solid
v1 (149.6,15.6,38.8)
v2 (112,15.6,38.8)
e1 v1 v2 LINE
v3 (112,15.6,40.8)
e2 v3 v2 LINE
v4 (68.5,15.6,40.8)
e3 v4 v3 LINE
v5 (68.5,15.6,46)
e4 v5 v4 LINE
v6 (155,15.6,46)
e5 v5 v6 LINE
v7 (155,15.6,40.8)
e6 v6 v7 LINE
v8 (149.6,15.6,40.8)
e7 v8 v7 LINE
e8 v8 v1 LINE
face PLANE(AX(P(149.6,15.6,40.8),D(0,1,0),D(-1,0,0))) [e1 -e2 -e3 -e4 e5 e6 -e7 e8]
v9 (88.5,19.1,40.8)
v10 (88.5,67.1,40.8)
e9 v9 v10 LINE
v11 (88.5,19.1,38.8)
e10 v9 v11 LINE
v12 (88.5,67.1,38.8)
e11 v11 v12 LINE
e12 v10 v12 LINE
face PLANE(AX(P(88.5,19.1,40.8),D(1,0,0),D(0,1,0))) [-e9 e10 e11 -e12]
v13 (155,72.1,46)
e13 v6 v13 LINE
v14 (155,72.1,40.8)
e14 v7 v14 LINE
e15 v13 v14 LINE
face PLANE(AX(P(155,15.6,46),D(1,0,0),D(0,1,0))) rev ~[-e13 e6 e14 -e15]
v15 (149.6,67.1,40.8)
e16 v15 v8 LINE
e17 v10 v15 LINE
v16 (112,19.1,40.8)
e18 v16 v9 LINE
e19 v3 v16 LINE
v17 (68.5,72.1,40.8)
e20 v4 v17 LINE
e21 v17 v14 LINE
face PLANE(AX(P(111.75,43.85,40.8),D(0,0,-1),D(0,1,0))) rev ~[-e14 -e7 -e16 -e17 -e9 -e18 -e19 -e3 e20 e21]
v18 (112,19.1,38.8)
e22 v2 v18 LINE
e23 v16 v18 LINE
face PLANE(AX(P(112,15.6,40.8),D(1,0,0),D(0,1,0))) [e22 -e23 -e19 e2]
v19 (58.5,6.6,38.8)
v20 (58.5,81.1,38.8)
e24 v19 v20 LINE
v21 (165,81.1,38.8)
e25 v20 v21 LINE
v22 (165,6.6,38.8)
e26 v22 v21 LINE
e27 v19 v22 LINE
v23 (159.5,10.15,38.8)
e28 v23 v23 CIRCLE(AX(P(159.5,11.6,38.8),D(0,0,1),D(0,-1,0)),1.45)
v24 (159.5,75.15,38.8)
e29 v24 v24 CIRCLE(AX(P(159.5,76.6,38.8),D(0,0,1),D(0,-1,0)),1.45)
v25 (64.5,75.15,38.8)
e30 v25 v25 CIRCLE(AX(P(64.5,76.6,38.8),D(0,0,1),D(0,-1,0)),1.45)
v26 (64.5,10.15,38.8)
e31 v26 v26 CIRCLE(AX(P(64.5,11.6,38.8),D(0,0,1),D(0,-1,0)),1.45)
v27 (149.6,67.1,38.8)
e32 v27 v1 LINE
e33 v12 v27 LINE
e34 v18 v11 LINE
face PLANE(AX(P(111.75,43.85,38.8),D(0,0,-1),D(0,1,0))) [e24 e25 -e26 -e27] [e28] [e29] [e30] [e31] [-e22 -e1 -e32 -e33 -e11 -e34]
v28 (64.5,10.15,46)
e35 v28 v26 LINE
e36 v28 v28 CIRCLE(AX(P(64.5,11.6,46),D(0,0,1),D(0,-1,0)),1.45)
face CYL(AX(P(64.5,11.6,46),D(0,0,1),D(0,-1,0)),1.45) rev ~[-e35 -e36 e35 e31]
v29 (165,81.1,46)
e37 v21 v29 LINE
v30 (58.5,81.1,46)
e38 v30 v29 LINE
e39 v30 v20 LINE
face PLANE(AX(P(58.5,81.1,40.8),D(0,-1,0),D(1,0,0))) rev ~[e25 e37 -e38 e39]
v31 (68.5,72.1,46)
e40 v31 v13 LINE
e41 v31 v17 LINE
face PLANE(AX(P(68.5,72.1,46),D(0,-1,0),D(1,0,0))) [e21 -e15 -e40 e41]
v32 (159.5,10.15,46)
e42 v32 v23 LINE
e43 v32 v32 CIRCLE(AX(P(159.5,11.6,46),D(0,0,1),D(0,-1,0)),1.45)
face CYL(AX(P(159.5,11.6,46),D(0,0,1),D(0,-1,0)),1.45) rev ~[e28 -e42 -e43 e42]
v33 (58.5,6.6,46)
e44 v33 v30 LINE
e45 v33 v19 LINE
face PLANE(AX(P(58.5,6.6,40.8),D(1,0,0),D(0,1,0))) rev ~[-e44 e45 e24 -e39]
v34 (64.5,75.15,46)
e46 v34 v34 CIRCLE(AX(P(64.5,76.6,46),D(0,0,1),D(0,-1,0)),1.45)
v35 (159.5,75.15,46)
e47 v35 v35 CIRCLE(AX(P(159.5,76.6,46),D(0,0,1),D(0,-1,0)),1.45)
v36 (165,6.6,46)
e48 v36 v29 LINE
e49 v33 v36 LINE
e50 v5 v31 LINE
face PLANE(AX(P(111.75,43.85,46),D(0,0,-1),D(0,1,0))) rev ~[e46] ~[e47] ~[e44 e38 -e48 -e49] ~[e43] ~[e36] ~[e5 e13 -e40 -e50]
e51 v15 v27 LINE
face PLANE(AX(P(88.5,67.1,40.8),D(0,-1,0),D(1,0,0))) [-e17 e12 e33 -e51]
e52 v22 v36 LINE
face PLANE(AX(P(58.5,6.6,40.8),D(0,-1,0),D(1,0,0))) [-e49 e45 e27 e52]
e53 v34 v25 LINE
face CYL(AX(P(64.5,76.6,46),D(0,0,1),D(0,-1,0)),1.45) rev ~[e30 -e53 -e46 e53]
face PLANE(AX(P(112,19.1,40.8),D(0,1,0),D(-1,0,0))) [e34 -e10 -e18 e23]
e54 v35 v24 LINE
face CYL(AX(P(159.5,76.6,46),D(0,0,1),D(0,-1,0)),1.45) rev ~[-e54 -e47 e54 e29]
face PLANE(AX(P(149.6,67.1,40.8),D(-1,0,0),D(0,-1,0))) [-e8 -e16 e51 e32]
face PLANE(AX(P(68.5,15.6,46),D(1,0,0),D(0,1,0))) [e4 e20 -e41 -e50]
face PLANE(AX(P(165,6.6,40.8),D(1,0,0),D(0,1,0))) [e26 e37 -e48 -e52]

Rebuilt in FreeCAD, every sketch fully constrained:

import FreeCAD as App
import Part
import Sketcher
Q = App.Units.Quantity

doc = App.newDocument("Part")
body = doc.addObject("PartDesign::Body", "Body")

# Sketch on XY plane
sketch1 = body.newObject("Sketcher::SketchObject", "Sketch")
sketch1.AttachmentSupport = (doc.getObject("XY_Plane"), [""])
sketch1.MapMode = "FlatFace"
sketch1.AttachmentOffset = App.Placement(App.Vector(0, 0, 46), App.Rotation())
sketch1.addGeometry(Part.LineSegment(App.Vector(165, 7, 0), App.Vector(58, 7, 0)), False)
sketch1.addGeometry(Part.LineSegment(App.Vector(58, 7, 0), App.Vector(58, 81, 0)), False)
sketch1.addGeometry(Part.LineSegment(App.Vector(58, 81, 0), App.Vector(165, 81, 0)), False)
sketch1.addGeometry(Part.LineSegment(App.Vector(165, 81, 0), App.Vector(165, 7, 0)), False)
sketch1.addGeometry(Part.LineSegment(App.Vector(68, 72, 0), App.Vector(68, 16, 0)), False)
sketch1.addGeometry(Part.LineSegment(App.Vector(68, 16, 0), App.Vector(155, 16, 0)), False)
sketch1.addGeometry(Part.LineSegment(App.Vector(155, 16, 0), App.Vector(155, 72, 0)), False)
sketch1.addGeometry(Part.LineSegment(App.Vector(155, 72, 0), App.Vector(68, 72, 0)), False)
sketch1.addConstraint(Sketcher.Constraint("Coincident", 0, 2, 1, 1))
sketch1.addConstraint(Sketcher.Constraint("Coincident", 1, 2, 2, 1))
sketch1.addConstraint(Sketcher.Constraint("Coincident", 2, 2, 3, 1))
sketch1.addConstraint(Sketcher.Constraint("Coincident", 3, 2, 0, 1))
sketch1.addConstraint(Sketcher.Constraint("Coincident", 4, 2, 5, 1))
sketch1.addConstraint(Sketcher.Constraint("Coincident", 5, 2, 6, 1))
sketch1.addConstraint(Sketcher.Constraint("Coincident", 6, 2, 7, 1))
sketch1.addConstraint(Sketcher.Constraint("Coincident", 7, 2, 4, 1))
sketch1.addConstraint(Sketcher.Constraint("Horizontal", 0))
sketch1.addConstraint(Sketcher.Constraint("Vertical", 1))
sketch1.addConstraint(Sketcher.Constraint("Horizontal", 2))
sketch1.addConstraint(Sketcher.Constraint("Vertical", 3))
sketch1.addConstraint(Sketcher.Constraint("Vertical", 4))
sketch1.addConstraint(Sketcher.Constraint("Horizontal", 5))
sketch1.addConstraint(Sketcher.Constraint("Vertical", 6))
sketch1.addConstraint(Sketcher.Constraint("Horizontal", 7))
sketch1.addConstraint(Sketcher.Constraint("DistanceX", 0, 2, 0, 1, Q("106.5 mm")))
sketch1.addConstraint(Sketcher.Constraint("DistanceX", 5, 1, 5, 2, Q("86.5 mm")))
sketch1.addConstraint(Sketcher.Constraint("DistanceY", 1, 1, 1, 2, Q("74.5 mm")))
sketch1.addConstraint(Sketcher.Constraint("DistanceY", 4, 2, 4, 1, Q("56.5 mm")))
sketch1.addConstraint(Sketcher.Constraint("DistanceX", -1, 1, 2, 2, Q("165 mm")))
sketch1.addConstraint(Sketcher.Constraint("DistanceX", -1, 1, 5, 2, Q("155 mm")))
sketch1.addConstraint(Sketcher.Constraint("DistanceY", 0, 2, 4, 2, Q("9 mm")))
sketch1.addConstraint(Sketcher.Constraint("DistanceY", -1, 1, 0, 2, Q("6.6 mm")))
pad1 = body.newObject("PartDesign::Pad", "Pad")
pad1.Profile = sketch1
pad1.Length = 5.2
pad1.Reversed = True

# Sketch on XY plane
sketch2 = body.newObject("Sketcher::SketchObject", "Sketch001")
sketch2.AttachmentSupport = (doc.getObject("XY_Plane"), [""])
sketch2.MapMode = "FlatFace"
sketch2.AttachmentOffset = App.Placement(App.Vector(0, 0, 40.8), App.Rotation())
sketch2.addGeometry(Part.LineSegment(App.Vector(165, 6.6, 0), App.Vector(58.5, 6.6, 0)), False)
sketch2.addGeometry(Part.LineSegment(App.Vector(58.5, 6.6, 0), App.Vector(58.5, 81.1, 0)), False)
sketch2.addGeometry(Part.LineSegment(App.Vector(58.5, 81.1, 0), App.Vector(165, 81.1, 0)), False)
sketch2.addGeometry(Part.LineSegment(App.Vector(165, 81.1, 0), App.Vector(165, 6.6, 0)), False)
sketch2.addGeometry(Part.LineSegment(App.Vector(149.6, 15.6, 0), App.Vector(149.6, 67.1, 0)), False)
sketch2.addGeometry(Part.LineSegment(App.Vector(149.6, 67.1, 0), App.Vector(88.5, 67.1, 0)), False)
sketch2.addGeometry(Part.LineSegment(App.Vector(88.5, 67.1, 0), App.Vector(88.5, 19.1, 0)), False)
sketch2.addGeometry(Part.LineSegment(App.Vector(88.5, 19.1, 0), App.Vector(112, 19.1, 0)), False)
sketch2.addGeometry(Part.LineSegment(App.Vector(112, 19.1, 0), App.Vector(112, 15.6, 0)), False)
sketch2.addGeometry(Part.LineSegment(App.Vector(112, 15.6, 0), App.Vector(149.6, 15.6, 0)), False)
sketch2.addConstraint(Sketcher.Constraint("Coincident", 0, 2, 1, 1))
sketch2.addConstraint(Sketcher.Constraint("Coincident", 1, 2, 2, 1))
sketch2.addConstraint(Sketcher.Constraint("Coincident", 2, 2, 3, 1))
sketch2.addConstraint(Sketcher.Constraint("Coincident", 3, 2, 0, 1))
sketch2.addConstraint(Sketcher.Constraint("Coincident", 4, 2, 5, 1))
sketch2.addConstraint(Sketcher.Constraint("Coincident", 5, 2, 6, 1))
sketch2.addConstraint(Sketcher.Constraint("Coincident", 6, 2, 7, 1))
sketch2.addConstraint(Sketcher.Constraint("Coincident", 7, 2, 8, 1))
sketch2.addConstraint(Sketcher.Constraint("Coincident", 8, 2, 9, 1))
sketch2.addConstraint(Sketcher.Constraint("Coincident", 9, 2, 4, 1))
sketch2.addConstraint(Sketcher.Constraint("Horizontal", 0))
sketch2.addConstraint(Sketcher.Constraint("Vertical", 1))
sketch2.addConstraint(Sketcher.Constraint("Horizontal", 2))
sketch2.addConstraint(Sketcher.Constraint("Vertical", 3))
sketch2.addConstraint(Sketcher.Constraint("Vertical", 4))
sketch2.addConstraint(Sketcher.Constraint("Horizontal", 5))
sketch2.addConstraint(Sketcher.Constraint("Vertical", 6))
sketch2.addConstraint(Sketcher.Constraint("Horizontal", 7))
sketch2.addConstraint(Sketcher.Constraint("Vertical", 8))
sketch2.addConstraint(Sketcher.Constraint("Horizontal", 9))
sketch2.addConstraint(Sketcher.Constraint("DistanceY", 6, 2, 6, 1, Q("48 mm")))
sketch2.addConstraint(Sketcher.Constraint("DistanceX", 0, 2, 0, 1, Q("106.5 mm")))
sketch2.addConstraint(Sketcher.Constraint("DistanceX", 5, 2, 5, 1, Q("61.1 mm")))
sketch2.addConstraint(Sketcher.Constraint("DistanceX", 7, 1, 7, 2, Q("23.5 mm")))
sketch2.addConstraint(Sketcher.Constraint("DistanceY", 1, 1, 1, 2, Q("74.5 mm")))
sketch2.addConstraint(Sketcher.Constraint("DistanceY", 4, 1, 4, 2, Q("51.5 mm")))
sketch2.addConstraint(Sketcher.Constraint("DistanceX", -1, 1, 2, 2, Q("165 mm")))
sketch2.addConstraint(Sketcher.Constraint("DistanceX", -1, 1, 7, 2, Q("112 mm")))
sketch2.addConstraint(Sketcher.Constraint("DistanceY", 4, 2, 2, 2, Q("14 mm")))
sketch2.addConstraint(Sketcher.Constraint("DistanceY", -1, 1, 0, 2, Q("6.6 mm")))
pad2 = body.newObject("PartDesign::Pad", "Pad001")
pad2.Profile = sketch2
pad2.Length = 2
pad2.Reversed = True

# Sketch on XY plane
sketch3 = body.newObject("Sketcher::SketchObject", "Sketch002")
sketch3.AttachmentSupport = (doc.getObject("XY_Plane"), [""])
sketch3.MapMode = "FlatFace"
sketch3.AttachmentOffset = App.Placement(App.Vector(0, 0, 46), App.Rotation())
sketch3.addGeometry(Part.Circle(App.Vector(159.5, 76.6, 0), App.Vector(0, 0, 1), 1.4), False)
sketch3.addGeometry(Part.Circle(App.Vector(159.5, 11.6, 0), App.Vector(0, 0, 1), 1.4), False)
sketch3.addGeometry(Part.Circle(App.Vector(64.5, 11.6, 0), App.Vector(0, 0, 1), 1.4), False)
sketch3.addGeometry(Part.Circle(App.Vector(64.5, 76.6, 0), App.Vector(0, 0, 1), 1.4), False)
sketch3.addConstraint(Sketcher.Constraint("Equal", 0, 1))
sketch3.addConstraint(Sketcher.Constraint("Equal", 1, 2))
sketch3.addConstraint(Sketcher.Constraint("Equal", 2, 3))
sketch3.addConstraint(Sketcher.Constraint("Horizontal", 1, 3, 2, 3))
sketch3.addConstraint(Sketcher.Constraint("Horizontal", 0, 3, 3, 3))
sketch3.addConstraint(Sketcher.Constraint("Vertical", 0, 3, 1, 3))
sketch3.addConstraint(Sketcher.Constraint("Vertical", 2, 3, 3, 3))
sketch3.addConstraint(Sketcher.Constraint("Diameter", 0, Q("2.9 mm")))
sketch3.addConstraint(Sketcher.Constraint("DistanceY", 1, 3, 0, 3, Q("65 mm")))
sketch3.addConstraint(Sketcher.Constraint("DistanceX", 2, 3, 1, 3, Q("95 mm")))
sketch3.addConstraint(Sketcher.Constraint("DistanceX", -1, 1, 0, 3, Q("159.5 mm")))
sketch3.addConstraint(Sketcher.Constraint("DistanceY", -1, 1, 0, 3, Q("76.6 mm")))
pocket1 = body.newObject("PartDesign::Pocket", "Pocket")
pocket1.Profile = sketch3
pocket1.Length = 9

doc.recompute()
